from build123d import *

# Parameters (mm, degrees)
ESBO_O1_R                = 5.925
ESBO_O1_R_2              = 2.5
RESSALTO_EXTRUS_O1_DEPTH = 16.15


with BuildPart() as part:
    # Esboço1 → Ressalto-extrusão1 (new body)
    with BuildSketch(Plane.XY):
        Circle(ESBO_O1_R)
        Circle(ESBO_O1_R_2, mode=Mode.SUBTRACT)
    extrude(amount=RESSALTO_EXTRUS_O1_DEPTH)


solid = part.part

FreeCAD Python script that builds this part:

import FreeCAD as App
import Part
import Sketcher
from FreeCAD import Vector

doc = App.newDocument("Part")
body = doc.addObject("PartDesign::Body", "Body")

# Sketch on XY plane
sketch1 = body.newObject("Sketcher::SketchObject", "Sketch")
sketch1.AttachmentSupport = (doc.getObject("XY_Plane"), [""])
sketch1.MapMode = "FlatFace"
sketch1.addGeometry([
    Part.Circle(Vector(0, 0, 0), Vector(0, 0, 1), 5.925),
    Part.Circle(Vector(0, 0, 0), Vector(0, 0, 1), 2.5),
], False)
sketch1.addConstraint([
    Sketcher.Constraint("Coincident", 0, 3, -1, 1),
    Sketcher.Constraint("Coincident", 1, 3, -1, 1),
    Sketcher.Constraint("Diameter", 1, 5.0),
    Sketcher.Constraint("Diameter", 0, 11.85),
])
pad1 = body.newObject("PartDesign::Pad", "Pad")
pad1.Profile = sketch1
pad1.Length = 16.15

doc.recompute()
